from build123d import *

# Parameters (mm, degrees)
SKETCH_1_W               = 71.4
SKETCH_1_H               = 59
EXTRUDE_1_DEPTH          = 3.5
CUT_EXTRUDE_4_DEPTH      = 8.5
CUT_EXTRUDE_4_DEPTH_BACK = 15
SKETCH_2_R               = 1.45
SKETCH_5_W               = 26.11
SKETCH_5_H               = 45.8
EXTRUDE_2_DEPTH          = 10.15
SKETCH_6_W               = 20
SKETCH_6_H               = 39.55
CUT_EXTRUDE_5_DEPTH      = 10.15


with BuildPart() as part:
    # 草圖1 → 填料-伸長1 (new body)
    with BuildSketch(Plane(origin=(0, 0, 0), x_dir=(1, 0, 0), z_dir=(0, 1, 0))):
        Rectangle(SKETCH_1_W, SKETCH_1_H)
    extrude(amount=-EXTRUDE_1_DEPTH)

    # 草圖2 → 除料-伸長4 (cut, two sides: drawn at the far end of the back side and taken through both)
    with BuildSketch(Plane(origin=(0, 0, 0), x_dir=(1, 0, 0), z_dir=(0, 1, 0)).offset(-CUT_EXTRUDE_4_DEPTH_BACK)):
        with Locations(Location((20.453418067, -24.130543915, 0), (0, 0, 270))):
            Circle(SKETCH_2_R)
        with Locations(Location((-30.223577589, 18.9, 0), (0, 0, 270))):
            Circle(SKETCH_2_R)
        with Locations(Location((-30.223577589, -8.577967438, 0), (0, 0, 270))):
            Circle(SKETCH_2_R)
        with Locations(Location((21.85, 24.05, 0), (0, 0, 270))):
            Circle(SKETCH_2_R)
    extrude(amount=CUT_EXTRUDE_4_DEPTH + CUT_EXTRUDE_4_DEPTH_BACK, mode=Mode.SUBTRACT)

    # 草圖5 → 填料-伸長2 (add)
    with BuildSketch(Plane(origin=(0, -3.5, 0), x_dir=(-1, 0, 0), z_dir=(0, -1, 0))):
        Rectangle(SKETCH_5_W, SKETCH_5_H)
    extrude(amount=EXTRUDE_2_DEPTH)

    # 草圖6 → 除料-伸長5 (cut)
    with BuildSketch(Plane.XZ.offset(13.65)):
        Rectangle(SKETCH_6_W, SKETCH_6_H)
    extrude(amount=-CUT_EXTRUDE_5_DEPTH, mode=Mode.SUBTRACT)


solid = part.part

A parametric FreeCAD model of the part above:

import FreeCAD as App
import Part
import Sketcher
from FreeCAD import Vector


def add_polygon(sketch, points):
    """Adds a closed chain of lines whose ends are joined by coincident constraints."""
    first, n = sketch.GeometryCount, len(points)
    for a, b in zip(points, points[1:] + points[:1]):
        sketch.addGeometry(Part.LineSegment(App.Vector(*a, 0), App.Vector(*b, 0)), False)
    for i in range(n):
        sketch.addConstraint(Sketcher.Constraint("Coincident", first + i, 2, first + (i + 1) % n, 1))

doc = App.newDocument("Part")
params = doc.addObject("Spreadsheet::Sheet", "Params")
for row, (alias, value) in enumerate([
    ("sketch1_height", "59 mm"),
    ("sketch1_width", "71.4 mm"),
    ("pad1_length", "3.5 mm"),
    ("sketch2_diameter", "2.9 mm"),
    ("sketch3_height", "45.8 mm"),
    ("sketch3_width", "26.11 mm"),
    ("pad2_length", "10.15 mm"),
    ("sketch4_width", "20 mm"),
    ("sketch4_height", "39.55 mm"),
    ("pocket2_length", "10.15 mm"),
], start=1):
    params.set(f"A{row}", alias)
    params.set(f"B{row}", "=" + value)
    params.setAlias(f"B{row}", alias)

body = doc.addObject("PartDesign::Body", "Body")

# Sketch on XZ plane
sketch1 = body.newObject("Sketcher::SketchObject", "Sketch")
sketch1.AttachmentSupport = (doc.getObject("XZ_Plane"), [""])
sketch1.MapMode = "FlatFace"
add_polygon(sketch1, [(-36, -30), (-36, 30), (36, 30), (36, -30)])  # lines 0-3
sketch1.addConstraint(Sketcher.Constraint("Vertical", 0))
sketch1.addConstraint(Sketcher.Constraint("Horizontal", 1))
sketch1.addConstraint(Sketcher.Constraint("Vertical", 2))
sketch1.addConstraint(Sketcher.Constraint("Horizontal", 3))
sketch1.addConstraint(Sketcher.Constraint("Symmetric", 0, 2, 2, 2, -1, 1))
sketch1.addConstraint(Sketcher.Constraint("DistanceY", 0, 1, 0, 2, 59.0))
sketch1.addConstraint(Sketcher.Constraint("DistanceX", 1, 1, 1, 2, 71.4))
sketch1.setExpression("Constraints[9]", "Params.sketch1_height")
sketch1.setExpression("Constraints[10]", "Params.sketch1_width")
pad1 = body.newObject("PartDesign::Pad", "Pad")
pad1.Profile = sketch1
pad1.setExpression("Length", "Params.pad1_length")

# Sketch on XZ plane
sketch2 = body.newObject("Sketcher::SketchObject", "Sketch001")
sketch2.AttachmentSupport = (doc.getObject("XZ_Plane"), [""])
sketch2.MapMode = "FlatFace"
sketch2.addGeometry(Part.Circle(Vector(20.5, 24.1, 0), Vector(0, 0, 1), 1.4), False)
sketch2.addGeometry(Part.Circle(Vector(-30.2, -18.9, 0), Vector(0, 0, 1), 1.4), False)
sketch2.addGeometry(Part.Circle(Vector(-30.2, 8.6, 0), Vector(0, 0, 1), 1.4), False)
sketch2.addGeometry(Part.Circle(Vector(21.9, -24.1, 0), Vector(0, 0, 1), 1.4), False)
sketch2.addConstraint(Sketcher.Constraint("Equal", 0, 1))
sketch2.addConstraint(Sketcher.Constraint("Equal", 1, 2))
sketch2.addConstraint(Sketcher.Constraint("Equal", 2, 3))
sketch2.addConstraint(Sketcher.Constraint("Vertical", 1, 3, 2, 3))
sketch2.addConstraint(Sketcher.Constraint("Diameter", 0, 2.9))
sketch2.addConstraint(Sketcher.Constraint("DistanceY", 1, 3, -1, 1, 18.9))
sketch2.addConstraint(Sketcher.Constraint("DistanceX", -1, 1, 3, 3, 21.85))
sketch2.addConstraint(Sketcher.Constraint("DistanceY", 3, 3, -1, 1, 24.05))
sketch2.addConstraint(Sketcher.Constraint("DistanceX", -1, 1, 0, 3, 20.453418))
sketch2.addConstraint(Sketcher.Constraint("DistanceY", -1, 1, 0, 3, 24.130544))
sketch2.addConstraint(Sketcher.Constraint("DistanceX", 1, 3, -1, 1, 30.223578))
sketch2.addConstraint(Sketcher.Constraint("DistanceY", -1, 1, 2, 3, 8.577967))
sketch2.setExpression("Constraints[4]", "Params.sketch2_diameter")
pocket1 = body.newObject("PartDesign::Pocket", "Pocket")
pocket1.Profile = sketch2
pocket1.Type = "ThroughAll"
pocket1.Midplane = True

# Sketch on XZ plane
sketch3 = body.newObject("Sketcher::SketchObject", "Sketch002")
sketch3.AttachmentSupport = (doc.getObject("XZ_Plane"), [""])
sketch3.MapMode = "FlatFace"
sketch3.AttachmentOffset = App.Placement(Vector(0, 0, 3.5), App.Rotation())
add_polygon(sketch3, [(13, -23), (13, 23), (-13, 23), (-13, -23)])  # lines 0-3
sketch3.addConstraint(Sketcher.Constraint("Vertical", 0))
sketch3.addConstraint(Sketcher.Constraint("Horizontal", 1))
sketch3.addConstraint(Sketcher.Constraint("Vertical", 2))
sketch3.addConstraint(Sketcher.Constraint("Horizontal", 3))
sketch3.addConstraint(Sketcher.Constraint("Symmetric", 0, 2, 2, 2, -1, 1))
sketch3.addConstraint(Sketcher.Constraint("DistanceY", 0, 1, 0, 2, 45.8))
sketch3.addConstraint(Sketcher.Constraint("DistanceX", 1, 2, 1, 1, 26.11))
sketch3.setExpression("Constraints[9]", "Params.sketch3_height")
sketch3.setExpression("Constraints[10]", "Params.sketch3_width")
pad2 = body.newObject("PartDesign::Pad", "Pad001")
pad2.Profile = sketch3
pad2.setExpression("Length", "Params.pad2_length")

# Sketch on XZ plane
sketch4 = body.newObject("Sketcher::SketchObject", "Sketch003")
sketch4.AttachmentSupport = (doc.getObject("XZ_Plane"), [""])
sketch4.MapMode = "FlatFace"
sketch4.AttachmentOffset = App.Placement(Vector(0, 0, 13.65), App.Rotation())
add_polygon(sketch4, [(-10, 20), (-10, -20), (10, -20), (10, 20)])  # lines 0-3
sketch4.addConstraint(Sketcher.Constraint("Vertical", 0))
sketch4.addConstraint(Sketcher.Constraint("Horizontal", 1))
sketch4.addConstraint(Sketcher.Constraint("Vertical", 2))
sketch4.addConstraint(Sketcher.Constraint("Horizontal", 3))
sketch4.addConstraint(Sketcher.Constraint("Symmetric", 0, 2, 2, 2, -1, 1))
sketch4.addConstraint(Sketcher.Constraint("DistanceX", 1, 1, 1, 2, 20.0))
sketch4.addConstraint(Sketcher.Constraint("DistanceY", 0, 2, 0, 1, 39.55))
sketch4.setExpression("Constraints[9]", "Params.sketch4_width")
sketch4.setExpression("Constraints[10]", "Params.sketch4_height")
pocket2 = body.newObject("PartDesign::Pocket", "Pocket001")
pocket2.Profile = sketch4
pocket2.setExpression("Length", "Params.pocket2_length")

doc.recompute()
